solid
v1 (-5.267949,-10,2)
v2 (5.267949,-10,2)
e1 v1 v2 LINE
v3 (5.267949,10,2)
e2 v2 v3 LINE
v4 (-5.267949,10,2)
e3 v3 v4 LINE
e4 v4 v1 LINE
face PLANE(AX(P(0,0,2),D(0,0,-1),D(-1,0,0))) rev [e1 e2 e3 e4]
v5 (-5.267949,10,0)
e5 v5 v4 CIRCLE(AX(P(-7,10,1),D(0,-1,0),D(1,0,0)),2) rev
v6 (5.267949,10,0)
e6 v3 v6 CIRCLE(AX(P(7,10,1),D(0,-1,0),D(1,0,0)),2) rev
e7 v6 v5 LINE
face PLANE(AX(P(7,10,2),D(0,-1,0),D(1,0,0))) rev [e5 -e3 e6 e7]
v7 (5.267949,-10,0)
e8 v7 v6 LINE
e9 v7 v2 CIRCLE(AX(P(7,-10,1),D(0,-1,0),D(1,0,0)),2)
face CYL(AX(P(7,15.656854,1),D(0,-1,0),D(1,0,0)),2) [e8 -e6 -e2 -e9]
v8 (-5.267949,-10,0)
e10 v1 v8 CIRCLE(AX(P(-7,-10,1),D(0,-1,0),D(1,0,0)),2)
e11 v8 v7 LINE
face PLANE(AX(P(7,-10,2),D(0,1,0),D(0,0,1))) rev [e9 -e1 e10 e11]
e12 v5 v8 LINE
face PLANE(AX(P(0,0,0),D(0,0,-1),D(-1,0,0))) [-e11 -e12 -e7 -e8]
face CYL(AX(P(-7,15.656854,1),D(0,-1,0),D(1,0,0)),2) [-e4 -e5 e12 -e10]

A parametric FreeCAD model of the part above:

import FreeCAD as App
import Part
import Sketcher


def add_polygon(sketch, points):
    """Adds a closed chain of lines whose ends are joined by coincident constraints."""
    first, n = sketch.GeometryCount, len(points)
    for a, b in zip(points, points[1:] + points[:1]):
        sketch.addGeometry(Part.LineSegment(App.Vector(*a, 0), App.Vector(*b, 0)), False)
    for i in range(n):
        sketch.addConstraint(Sketcher.Constraint("Coincident", first + i, 2, first + (i + 1) % n, 1))

doc = App.newDocument("Part")
params = doc.addObject("Spreadsheet::Sheet", "Params")
for row, (alias, value) in enumerate([
    ("sketch1_width", "14 mm"),
    ("sketch1_height", "20 mm"),
    ("pad1_length", "2 mm"),
    ("sketch2_diameter", "4 mm"),
    ("pad2_length", "20 mm"),
], start=1):
    params.set(f"A{row}", alias)
    params.set(f"B{row}", "=" + value)
    params.setAlias(f"B{row}", alias)

body = doc.addObject("PartDesign::Body", "Body")

# Sketch on XY plane
sketch1 = body.newObject("Sketcher::SketchObject", "Sketch")
sketch1.AttachmentSupport = (doc.getObject("XY_Plane"), [""])
sketch1.MapMode = "FlatFace"
add_polygon(sketch1, [(-7, 10), (-7, -10), (7, -10), (7, 10)])  # lines 0-3
sketch1.addConstraint([
    Sketcher.Constraint("Vertical", 0),
    Sketcher.Constraint("Horizontal", 1),
    Sketcher.Constraint("Vertical", 2),
    Sketcher.Constraint("Horizontal", 3),
    Sketcher.Constraint("Symmetric", 0, 2, 2, 2, -1, 1),
    Sketcher.Constraint("DistanceX", 1, 1, 1, 2, 14.0),
    Sketcher.Constraint("DistanceY", 0, 2, 0, 1, 20.0),
])
sketch1.setExpression("Constraints[9]", "Params.sketch1_width")
sketch1.setExpression("Constraints[10]", "Params.sketch1_height")
pad1 = body.newObject("PartDesign::Pad", "Pad")
pad1.Profile = sketch1
pad1.setExpression("Length", "Params.pad1_length")

# Sketch on XZ plane
sketch2 = body.newObject("Sketcher::SketchObject", "Sketch001")
sketch2.AttachmentSupport = (doc.getObject("XZ_Plane"), [""])
sketch2.MapMode = "FlatFace"
sketch2.AttachmentOffset = App.Placement(App.Vector(0, 0, 10), App.Rotation())
sketch2.addGeometry([
    Part.Circle(App.Vector(-7, 1, 0), App.Vector(0, 0, 1), 2),
    Part.Circle(App.Vector(7, 1, 0), App.Vector(0, 0, 1), 2),
], False)
sketch2.addConstraint([
    Sketcher.Constraint("Equal", 0, 1),
    Sketcher.Constraint("Symmetric", 0, 3, 1, 3, -2),
    Sketcher.Constraint("Diameter", 0, 4.0),
    Sketcher.Constraint("DistanceX", 0, 3, -1, 1, 7.0),
    Sketcher.Constraint("DistanceY", -1, 1, 0, 3, 1.0),
])
sketch2.setExpression("Constraints[2]", "Params.sketch2_diameter")
pad2 = body.newObject("PartDesign::Pad", "Pad001")
pad2.Profile = sketch2
pad2.setExpression("Length", "Params.pad2_length")
pad2.Reversed = True

doc.recompute()
